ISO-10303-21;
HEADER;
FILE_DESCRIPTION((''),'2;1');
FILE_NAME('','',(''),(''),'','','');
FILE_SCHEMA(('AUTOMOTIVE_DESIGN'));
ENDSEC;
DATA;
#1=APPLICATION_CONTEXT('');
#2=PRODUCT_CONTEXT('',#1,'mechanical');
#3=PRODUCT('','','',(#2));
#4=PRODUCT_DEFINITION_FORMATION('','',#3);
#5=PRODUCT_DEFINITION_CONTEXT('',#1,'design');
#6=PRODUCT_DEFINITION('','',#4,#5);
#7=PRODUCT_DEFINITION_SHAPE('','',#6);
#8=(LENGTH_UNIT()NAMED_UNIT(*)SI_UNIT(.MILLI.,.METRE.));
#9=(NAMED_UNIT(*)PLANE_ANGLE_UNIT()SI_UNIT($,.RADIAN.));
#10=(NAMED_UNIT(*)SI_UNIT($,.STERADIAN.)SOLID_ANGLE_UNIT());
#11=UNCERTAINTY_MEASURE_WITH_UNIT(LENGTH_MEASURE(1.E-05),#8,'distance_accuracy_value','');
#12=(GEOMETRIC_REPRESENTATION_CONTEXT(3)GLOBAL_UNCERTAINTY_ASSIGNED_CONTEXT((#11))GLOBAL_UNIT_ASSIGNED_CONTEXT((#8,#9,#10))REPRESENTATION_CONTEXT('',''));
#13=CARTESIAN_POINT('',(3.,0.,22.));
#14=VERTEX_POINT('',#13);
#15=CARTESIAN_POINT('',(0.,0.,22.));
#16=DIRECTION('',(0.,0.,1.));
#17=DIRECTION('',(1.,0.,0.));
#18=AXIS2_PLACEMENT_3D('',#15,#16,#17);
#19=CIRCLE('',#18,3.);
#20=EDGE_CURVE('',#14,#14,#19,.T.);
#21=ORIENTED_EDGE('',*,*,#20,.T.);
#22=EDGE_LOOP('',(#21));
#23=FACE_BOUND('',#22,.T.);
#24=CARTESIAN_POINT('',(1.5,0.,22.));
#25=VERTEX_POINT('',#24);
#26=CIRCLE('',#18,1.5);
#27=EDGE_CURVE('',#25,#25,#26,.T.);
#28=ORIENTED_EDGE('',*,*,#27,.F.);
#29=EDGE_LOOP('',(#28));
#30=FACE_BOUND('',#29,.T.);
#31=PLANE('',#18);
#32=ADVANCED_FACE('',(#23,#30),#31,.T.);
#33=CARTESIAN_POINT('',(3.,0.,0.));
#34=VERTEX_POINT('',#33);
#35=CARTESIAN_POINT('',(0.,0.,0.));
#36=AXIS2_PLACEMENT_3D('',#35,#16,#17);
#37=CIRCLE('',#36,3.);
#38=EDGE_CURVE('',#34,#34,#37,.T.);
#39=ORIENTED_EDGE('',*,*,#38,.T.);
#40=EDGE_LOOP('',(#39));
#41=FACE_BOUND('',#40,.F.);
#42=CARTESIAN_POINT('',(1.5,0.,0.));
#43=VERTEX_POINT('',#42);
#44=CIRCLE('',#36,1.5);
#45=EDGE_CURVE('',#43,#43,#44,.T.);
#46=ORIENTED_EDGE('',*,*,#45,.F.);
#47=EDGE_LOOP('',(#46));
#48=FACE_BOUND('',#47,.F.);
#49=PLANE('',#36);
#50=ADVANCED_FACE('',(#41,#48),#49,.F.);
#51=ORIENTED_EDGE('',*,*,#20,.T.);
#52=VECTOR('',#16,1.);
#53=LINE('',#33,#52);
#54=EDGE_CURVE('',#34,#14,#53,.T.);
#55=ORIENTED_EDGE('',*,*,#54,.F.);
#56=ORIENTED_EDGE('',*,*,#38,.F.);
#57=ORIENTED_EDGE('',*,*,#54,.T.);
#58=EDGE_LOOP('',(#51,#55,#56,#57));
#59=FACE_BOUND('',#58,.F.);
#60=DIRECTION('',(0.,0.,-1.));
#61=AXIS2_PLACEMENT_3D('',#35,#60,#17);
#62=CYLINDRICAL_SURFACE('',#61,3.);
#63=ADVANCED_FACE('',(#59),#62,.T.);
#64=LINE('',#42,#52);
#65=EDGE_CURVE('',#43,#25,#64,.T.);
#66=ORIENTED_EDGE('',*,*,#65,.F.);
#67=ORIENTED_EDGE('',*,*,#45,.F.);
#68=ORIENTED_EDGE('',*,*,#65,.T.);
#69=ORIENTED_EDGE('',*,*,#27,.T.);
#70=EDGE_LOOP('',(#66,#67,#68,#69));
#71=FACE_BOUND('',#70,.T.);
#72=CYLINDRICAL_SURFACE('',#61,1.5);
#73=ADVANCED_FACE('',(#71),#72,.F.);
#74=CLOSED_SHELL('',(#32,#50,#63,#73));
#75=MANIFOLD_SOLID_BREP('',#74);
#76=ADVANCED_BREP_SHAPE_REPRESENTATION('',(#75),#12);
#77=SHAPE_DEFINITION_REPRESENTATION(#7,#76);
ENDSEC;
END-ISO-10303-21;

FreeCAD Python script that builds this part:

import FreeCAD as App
import Part
import Sketcher

V = App.Vector

doc = App.newDocument("Part")
params = doc.addObject("Spreadsheet::Sheet", "Params")
for row, (alias, value) in enumerate([
    ("sketch1_diameter", "6 mm"),
    ("sketch1_diameter2", "3 mm"),
    ("pad1_length", "22 mm"),
], start=1):
    params.set(f"A{row}", alias)
    params.set(f"B{row}", "=" + value)
    params.setAlias(f"B{row}", alias)

body = doc.addObject("PartDesign::Body", "Body")

sketch1 = body.newObject("Sketcher::SketchObject", "Sketch")
sketch1.AttachmentSupport = (doc.getObject("XY_Plane"), [""])
sketch1.MapMode = "FlatFace"
sketch1.addGeometry(Part.Circle(V(0, 0, 0), V(0, 0, 1), 3), False)
sketch1.addGeometry(Part.Circle(V(0, 0, 0), V(0, 0, 1), 1.5), False)
sketch1.addConstraint(Sketcher.Constraint("Coincident", 0, 3, -1, 1))
sketch1.addConstraint(Sketcher.Constraint("Coincident", 1, 3, -1, 1))
sketch1.addConstraint(Sketcher.Constraint("Diameter", 0, 6.0))
sketch1.addConstraint(Sketcher.Constraint("Diameter", 1, 3.0))
sketch1.setExpression("Constraints[2]", "Params.sketch1_diameter")
sketch1.setExpression("Constraints[3]", "Params.sketch1_diameter2")
pad1 = body.newObject("PartDesign::Pad", "Pad")
pad1.Profile = sketch1
pad1.setExpression("Length", "Params.pad1_length")

doc.recompute()
